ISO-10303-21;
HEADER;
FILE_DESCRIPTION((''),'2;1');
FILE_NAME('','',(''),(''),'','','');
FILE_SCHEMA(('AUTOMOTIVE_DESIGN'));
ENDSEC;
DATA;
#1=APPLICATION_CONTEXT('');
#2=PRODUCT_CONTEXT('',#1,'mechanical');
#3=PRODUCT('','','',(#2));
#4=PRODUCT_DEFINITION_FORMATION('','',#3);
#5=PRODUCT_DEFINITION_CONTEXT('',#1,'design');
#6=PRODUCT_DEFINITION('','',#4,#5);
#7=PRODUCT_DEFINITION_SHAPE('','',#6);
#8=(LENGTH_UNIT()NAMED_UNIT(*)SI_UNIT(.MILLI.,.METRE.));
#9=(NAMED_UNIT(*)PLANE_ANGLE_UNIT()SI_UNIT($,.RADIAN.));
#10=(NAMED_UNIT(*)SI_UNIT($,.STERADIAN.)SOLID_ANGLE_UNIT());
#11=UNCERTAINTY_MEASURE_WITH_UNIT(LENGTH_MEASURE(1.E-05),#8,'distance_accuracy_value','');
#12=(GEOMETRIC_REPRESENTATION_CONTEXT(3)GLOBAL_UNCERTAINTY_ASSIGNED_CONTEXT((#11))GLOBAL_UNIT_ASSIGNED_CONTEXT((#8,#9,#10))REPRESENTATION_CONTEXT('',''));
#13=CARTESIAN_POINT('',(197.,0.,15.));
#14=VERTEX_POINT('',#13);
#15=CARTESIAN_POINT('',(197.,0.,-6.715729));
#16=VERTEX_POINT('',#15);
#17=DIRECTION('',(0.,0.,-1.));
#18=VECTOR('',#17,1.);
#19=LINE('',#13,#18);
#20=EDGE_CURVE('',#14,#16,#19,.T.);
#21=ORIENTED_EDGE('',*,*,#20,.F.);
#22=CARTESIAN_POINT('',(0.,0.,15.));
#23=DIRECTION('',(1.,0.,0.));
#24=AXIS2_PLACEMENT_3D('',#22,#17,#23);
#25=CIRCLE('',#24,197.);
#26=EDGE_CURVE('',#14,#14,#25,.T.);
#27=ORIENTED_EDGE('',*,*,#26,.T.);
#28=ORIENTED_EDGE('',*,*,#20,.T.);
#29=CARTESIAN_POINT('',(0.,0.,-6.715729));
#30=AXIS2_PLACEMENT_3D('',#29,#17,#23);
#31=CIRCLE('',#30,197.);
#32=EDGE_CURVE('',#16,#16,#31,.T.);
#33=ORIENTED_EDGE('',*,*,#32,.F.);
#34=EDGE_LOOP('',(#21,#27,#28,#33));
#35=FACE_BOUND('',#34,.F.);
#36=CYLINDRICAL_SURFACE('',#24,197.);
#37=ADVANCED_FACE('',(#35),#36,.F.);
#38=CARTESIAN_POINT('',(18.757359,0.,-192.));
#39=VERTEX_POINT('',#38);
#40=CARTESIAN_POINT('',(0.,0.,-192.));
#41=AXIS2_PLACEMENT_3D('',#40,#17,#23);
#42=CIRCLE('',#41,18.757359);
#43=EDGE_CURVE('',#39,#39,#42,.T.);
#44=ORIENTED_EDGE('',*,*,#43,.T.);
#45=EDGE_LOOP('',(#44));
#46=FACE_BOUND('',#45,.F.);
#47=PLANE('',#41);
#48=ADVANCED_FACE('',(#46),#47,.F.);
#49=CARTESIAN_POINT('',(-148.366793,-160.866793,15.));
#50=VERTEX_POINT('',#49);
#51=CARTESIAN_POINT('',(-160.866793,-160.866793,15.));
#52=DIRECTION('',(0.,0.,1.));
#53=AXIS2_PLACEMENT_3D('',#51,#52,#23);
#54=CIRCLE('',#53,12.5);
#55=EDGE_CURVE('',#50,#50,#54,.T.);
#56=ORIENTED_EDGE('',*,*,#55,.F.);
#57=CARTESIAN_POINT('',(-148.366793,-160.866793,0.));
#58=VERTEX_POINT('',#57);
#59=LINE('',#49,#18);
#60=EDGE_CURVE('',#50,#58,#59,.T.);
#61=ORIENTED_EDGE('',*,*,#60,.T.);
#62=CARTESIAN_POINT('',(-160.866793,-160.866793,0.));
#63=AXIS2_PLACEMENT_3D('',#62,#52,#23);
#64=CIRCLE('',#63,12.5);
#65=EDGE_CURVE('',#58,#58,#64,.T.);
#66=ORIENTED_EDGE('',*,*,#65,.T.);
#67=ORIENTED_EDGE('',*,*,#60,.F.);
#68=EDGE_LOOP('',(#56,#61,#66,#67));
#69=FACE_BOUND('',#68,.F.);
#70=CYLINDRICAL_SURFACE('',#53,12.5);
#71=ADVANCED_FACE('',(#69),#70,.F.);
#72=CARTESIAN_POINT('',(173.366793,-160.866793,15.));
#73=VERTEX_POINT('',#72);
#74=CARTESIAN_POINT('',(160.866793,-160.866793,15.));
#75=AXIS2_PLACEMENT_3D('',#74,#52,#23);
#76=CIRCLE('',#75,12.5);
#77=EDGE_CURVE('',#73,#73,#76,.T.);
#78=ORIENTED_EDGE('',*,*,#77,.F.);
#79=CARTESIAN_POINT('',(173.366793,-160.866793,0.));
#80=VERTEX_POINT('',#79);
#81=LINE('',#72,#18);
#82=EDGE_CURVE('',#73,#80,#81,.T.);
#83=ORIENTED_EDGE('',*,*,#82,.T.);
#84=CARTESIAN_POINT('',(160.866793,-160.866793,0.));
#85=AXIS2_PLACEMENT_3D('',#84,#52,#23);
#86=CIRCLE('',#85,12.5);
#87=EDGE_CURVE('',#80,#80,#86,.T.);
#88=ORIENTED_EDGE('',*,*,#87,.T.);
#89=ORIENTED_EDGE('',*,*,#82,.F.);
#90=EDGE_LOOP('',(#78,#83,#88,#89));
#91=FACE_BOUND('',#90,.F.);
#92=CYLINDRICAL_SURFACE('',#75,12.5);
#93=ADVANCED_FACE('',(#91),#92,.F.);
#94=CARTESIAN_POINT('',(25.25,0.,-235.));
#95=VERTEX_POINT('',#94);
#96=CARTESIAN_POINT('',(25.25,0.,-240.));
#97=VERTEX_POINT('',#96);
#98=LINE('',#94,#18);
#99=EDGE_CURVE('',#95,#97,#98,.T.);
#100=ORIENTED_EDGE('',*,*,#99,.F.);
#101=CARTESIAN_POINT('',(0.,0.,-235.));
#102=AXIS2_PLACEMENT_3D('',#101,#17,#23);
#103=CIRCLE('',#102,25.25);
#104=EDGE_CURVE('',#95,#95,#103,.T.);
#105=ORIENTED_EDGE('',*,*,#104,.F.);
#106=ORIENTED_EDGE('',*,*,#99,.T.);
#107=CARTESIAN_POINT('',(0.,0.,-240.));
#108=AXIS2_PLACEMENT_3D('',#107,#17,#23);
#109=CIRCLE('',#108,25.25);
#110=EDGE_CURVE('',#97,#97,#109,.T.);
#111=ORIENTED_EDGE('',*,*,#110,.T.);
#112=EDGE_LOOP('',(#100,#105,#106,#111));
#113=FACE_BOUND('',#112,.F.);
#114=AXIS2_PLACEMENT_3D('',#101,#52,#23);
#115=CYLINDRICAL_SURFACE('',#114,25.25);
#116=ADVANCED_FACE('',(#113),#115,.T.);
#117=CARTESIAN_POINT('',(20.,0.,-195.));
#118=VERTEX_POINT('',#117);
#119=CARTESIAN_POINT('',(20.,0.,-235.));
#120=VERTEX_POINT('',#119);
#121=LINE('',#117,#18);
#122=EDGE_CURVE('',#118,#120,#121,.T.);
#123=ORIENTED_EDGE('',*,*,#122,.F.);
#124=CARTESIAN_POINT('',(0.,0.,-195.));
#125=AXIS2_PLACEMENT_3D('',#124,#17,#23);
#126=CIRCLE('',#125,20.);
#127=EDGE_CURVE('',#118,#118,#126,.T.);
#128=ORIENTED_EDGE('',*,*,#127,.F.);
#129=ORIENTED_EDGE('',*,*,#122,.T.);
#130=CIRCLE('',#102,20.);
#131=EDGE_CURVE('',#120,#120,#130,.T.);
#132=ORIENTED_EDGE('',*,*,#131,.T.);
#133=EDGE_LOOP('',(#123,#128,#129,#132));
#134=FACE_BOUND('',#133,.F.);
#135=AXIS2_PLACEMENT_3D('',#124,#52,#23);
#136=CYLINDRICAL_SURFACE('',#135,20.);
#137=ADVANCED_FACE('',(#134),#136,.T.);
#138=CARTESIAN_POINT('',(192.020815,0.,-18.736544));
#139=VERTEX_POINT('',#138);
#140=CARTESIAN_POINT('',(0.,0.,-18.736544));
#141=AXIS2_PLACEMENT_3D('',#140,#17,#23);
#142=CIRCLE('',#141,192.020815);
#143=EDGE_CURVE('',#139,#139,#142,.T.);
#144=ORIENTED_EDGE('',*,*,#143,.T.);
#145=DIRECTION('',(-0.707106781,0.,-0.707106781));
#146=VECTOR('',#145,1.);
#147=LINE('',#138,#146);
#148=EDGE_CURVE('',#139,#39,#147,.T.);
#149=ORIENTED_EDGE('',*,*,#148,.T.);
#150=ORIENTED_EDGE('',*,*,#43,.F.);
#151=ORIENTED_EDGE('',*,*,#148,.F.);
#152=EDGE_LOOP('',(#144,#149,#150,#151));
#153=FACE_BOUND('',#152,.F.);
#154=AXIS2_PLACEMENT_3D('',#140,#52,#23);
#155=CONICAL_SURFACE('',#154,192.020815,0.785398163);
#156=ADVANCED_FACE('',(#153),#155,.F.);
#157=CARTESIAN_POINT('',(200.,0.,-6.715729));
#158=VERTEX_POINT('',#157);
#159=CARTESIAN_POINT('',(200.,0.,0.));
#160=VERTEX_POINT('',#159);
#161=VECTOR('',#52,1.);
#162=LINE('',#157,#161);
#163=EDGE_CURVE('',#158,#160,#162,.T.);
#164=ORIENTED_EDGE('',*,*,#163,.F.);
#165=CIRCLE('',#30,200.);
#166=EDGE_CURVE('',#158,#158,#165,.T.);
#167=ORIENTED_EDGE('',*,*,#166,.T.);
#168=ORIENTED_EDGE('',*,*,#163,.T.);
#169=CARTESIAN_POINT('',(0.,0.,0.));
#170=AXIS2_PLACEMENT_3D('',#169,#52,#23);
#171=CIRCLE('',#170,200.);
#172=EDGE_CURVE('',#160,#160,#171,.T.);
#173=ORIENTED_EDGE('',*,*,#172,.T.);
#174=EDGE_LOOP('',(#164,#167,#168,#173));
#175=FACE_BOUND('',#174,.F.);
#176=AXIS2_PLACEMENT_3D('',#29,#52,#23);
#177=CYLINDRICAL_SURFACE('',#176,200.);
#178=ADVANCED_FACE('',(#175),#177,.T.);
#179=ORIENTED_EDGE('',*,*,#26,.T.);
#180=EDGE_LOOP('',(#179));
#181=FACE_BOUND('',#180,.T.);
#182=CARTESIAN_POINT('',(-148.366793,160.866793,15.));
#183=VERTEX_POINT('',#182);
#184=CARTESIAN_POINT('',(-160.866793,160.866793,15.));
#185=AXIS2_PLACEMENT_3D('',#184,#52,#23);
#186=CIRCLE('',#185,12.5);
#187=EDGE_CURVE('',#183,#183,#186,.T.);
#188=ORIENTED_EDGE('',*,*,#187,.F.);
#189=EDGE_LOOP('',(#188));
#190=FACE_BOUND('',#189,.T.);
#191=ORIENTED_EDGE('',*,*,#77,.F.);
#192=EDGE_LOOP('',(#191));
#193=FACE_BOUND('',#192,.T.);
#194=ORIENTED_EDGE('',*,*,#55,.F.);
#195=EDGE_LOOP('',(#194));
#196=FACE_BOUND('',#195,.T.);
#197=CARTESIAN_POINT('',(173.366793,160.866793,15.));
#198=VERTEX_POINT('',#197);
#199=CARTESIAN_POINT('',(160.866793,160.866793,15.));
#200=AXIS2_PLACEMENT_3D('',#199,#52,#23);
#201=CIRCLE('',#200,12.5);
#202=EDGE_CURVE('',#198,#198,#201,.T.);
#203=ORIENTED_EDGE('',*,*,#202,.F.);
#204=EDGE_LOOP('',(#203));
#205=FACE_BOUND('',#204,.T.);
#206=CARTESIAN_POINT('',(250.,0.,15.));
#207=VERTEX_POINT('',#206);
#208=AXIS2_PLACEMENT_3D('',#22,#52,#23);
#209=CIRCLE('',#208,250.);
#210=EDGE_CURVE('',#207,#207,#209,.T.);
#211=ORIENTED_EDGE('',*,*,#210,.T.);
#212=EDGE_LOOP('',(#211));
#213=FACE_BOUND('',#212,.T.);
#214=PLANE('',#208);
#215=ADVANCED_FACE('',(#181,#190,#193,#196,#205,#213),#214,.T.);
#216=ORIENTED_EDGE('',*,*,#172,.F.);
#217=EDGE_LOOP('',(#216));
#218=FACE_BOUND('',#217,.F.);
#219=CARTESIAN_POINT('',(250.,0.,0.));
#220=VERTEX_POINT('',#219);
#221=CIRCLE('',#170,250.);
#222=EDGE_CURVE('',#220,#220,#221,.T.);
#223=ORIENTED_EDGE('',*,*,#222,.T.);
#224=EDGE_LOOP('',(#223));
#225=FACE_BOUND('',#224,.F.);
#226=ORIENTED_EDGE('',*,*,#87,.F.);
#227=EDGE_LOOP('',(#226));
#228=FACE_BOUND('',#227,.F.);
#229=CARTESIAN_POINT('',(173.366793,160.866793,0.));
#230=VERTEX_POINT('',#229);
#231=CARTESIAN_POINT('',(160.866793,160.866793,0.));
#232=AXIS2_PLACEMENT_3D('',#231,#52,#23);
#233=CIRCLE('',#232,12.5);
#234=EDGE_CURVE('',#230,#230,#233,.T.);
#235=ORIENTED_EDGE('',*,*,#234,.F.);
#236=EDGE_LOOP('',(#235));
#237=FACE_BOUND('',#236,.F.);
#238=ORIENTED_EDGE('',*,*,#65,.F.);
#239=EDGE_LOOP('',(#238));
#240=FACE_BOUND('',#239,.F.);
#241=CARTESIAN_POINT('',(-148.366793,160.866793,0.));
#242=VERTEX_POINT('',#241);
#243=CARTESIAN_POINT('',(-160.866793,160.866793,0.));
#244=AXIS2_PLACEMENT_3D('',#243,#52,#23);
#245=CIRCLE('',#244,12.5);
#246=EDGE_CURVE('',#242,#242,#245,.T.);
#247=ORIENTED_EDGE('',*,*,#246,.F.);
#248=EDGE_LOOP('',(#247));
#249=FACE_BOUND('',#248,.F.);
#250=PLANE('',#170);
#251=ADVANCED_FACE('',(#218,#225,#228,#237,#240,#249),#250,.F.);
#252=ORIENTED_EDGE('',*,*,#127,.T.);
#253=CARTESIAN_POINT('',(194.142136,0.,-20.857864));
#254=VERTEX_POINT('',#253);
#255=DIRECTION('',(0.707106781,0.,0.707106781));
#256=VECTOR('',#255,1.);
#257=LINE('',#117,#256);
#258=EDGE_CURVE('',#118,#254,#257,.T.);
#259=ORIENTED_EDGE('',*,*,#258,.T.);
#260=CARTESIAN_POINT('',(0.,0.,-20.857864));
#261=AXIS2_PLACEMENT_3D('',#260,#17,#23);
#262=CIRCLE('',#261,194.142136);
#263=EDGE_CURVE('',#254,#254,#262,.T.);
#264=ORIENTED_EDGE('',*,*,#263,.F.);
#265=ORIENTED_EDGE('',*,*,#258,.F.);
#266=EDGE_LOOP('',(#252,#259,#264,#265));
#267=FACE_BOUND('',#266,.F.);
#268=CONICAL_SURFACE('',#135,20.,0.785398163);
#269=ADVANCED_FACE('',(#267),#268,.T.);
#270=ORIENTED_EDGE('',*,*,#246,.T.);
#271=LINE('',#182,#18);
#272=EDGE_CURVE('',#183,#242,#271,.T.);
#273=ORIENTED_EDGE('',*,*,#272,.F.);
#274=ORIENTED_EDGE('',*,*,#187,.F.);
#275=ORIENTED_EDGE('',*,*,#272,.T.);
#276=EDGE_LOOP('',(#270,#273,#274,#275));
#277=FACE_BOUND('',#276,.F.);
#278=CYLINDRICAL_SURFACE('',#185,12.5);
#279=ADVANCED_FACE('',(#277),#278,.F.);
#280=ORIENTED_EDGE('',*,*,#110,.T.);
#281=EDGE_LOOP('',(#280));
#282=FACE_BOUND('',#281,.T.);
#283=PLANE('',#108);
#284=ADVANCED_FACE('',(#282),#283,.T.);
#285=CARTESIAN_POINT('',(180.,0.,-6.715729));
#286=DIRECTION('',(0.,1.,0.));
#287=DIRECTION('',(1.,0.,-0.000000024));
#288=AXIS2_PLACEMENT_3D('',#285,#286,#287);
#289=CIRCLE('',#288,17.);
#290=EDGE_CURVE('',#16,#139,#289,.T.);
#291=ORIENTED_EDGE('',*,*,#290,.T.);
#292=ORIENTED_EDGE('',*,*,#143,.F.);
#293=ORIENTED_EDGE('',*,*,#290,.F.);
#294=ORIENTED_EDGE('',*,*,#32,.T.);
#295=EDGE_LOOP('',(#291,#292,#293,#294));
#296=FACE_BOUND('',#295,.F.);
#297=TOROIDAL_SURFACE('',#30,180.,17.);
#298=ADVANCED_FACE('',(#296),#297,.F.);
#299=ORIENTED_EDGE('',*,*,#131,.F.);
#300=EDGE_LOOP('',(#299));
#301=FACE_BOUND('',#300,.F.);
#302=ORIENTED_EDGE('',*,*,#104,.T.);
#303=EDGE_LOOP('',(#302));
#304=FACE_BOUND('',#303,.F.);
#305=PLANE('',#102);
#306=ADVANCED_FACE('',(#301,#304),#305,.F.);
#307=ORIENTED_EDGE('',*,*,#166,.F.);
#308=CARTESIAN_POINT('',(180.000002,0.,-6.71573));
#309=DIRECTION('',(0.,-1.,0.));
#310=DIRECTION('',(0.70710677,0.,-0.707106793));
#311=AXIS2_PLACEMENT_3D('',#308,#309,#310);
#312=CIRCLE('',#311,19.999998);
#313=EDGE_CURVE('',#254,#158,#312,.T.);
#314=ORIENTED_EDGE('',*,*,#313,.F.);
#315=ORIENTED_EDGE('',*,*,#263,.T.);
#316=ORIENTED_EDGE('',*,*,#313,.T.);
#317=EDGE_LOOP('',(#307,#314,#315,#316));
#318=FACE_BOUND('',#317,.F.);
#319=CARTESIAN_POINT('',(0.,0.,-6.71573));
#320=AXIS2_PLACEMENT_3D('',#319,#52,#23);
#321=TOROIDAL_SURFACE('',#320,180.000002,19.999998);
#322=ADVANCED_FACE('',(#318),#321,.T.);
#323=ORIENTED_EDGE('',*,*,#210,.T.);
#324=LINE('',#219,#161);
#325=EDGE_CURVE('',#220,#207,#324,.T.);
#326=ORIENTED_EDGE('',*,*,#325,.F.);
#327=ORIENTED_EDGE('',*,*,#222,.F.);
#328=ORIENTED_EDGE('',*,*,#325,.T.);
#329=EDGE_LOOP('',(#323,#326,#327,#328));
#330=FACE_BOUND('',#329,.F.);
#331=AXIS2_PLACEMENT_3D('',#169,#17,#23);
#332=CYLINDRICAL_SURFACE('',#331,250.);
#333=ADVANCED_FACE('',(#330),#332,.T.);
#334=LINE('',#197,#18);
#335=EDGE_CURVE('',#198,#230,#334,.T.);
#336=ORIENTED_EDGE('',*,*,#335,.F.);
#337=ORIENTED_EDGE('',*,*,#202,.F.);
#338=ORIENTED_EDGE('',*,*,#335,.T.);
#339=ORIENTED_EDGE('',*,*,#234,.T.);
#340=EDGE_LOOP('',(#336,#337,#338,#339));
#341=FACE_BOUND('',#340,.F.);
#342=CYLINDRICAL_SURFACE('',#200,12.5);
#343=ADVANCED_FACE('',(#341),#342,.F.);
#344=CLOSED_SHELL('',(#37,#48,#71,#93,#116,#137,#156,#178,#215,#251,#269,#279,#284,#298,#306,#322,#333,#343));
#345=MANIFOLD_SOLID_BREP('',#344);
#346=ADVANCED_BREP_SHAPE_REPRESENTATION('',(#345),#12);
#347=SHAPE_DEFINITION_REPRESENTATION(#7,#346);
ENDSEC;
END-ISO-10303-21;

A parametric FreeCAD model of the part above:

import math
import FreeCAD as App
import Part
import Sketcher
from FreeCAD import Vector
Q = App.Units.Quantity

doc = App.newDocument("Part")
body = doc.addObject("PartDesign::Body", "Body")

sketch1 = body.newObject("Sketcher::SketchObject", "Sketch")
sketch1.AttachmentSupport = (doc.getObject("XY_Plane"), [""])
sketch1.MapMode = "FlatFace"
sketch1.addGeometry(Part.Circle(Vector(0, 0, 0), Vector(0, 0, 1), 250), False)
sketch1.addGeometry(Part.Circle(Vector(0, 0, 0), Vector(0, 0, 1), 200), False)
sketch1.addConstraint(Sketcher.Constraint("Coincident", 0, 3, -1, 1))
sketch1.addConstraint(Sketcher.Constraint("Coincident", 1, 3, -1, 1))
sketch1.addConstraint(Sketcher.Constraint("Diameter", 0, Q("500 mm")))
sketch1.addConstraint(Sketcher.Constraint("Diameter", 1, Q("400 mm")))
pad1 = body.newObject("PartDesign::Pad", "Pad")
pad1.Profile = sketch1
pad1.Length = 15

sketch2 = body.newObject("Sketcher::SketchObject", "Sketch001")
sketch2.AttachmentSupport = (doc.getObject("XZ_Plane"), [""])
sketch2.MapMode = "FlatFace"
sketch2.addGeometry(Part.LineSegment(Vector(200, -6.715729, 0), Vector(200, 15, 0)), False)
sketch2.addGeometry(Part.LineSegment(Vector(200, 15, 0), Vector(197, 15, 0)), False)
sketch2.addGeometry(Part.LineSegment(Vector(197, 15, 0), Vector(197, -6.715729, 0)), False)
sketch2.addGeometry(Part.ArcOfCircle(Part.Circle(Vector(180, -6.715729, 0), Vector(0, 0, 1), 17), math.radians(-45.000002), math.radians(-0.000001)), False)
sketch2.addGeometry(Part.LineSegment(Vector(192.020815, -18.736544, 0), Vector(18.757359, -192, 0)), False)
sketch2.addGeometry(Part.LineSegment(Vector(18.757359, -192, 0), Vector(0, -192, 0)), False)
sketch2.addGeometry(Part.LineSegment(Vector(0, -192, 0), Vector(0, -195, 0)), False)
sketch2.addGeometry(Part.LineSegment(Vector(0, -195, 0), Vector(20, -195, 0)), False)
sketch2.addGeometry(Part.LineSegment(Vector(20, -195, 0), Vector(194.142136, -20.857864, 0)), False)
sketch2.addGeometry(Part.ArcOfCircle(Part.Circle(Vector(180.000002, -6.71573, 0), Vector(0, 0, 1), 19.999998), math.radians(-45.000001), math.radians(0.000002)), False)
sketch2.addConstraint(Sketcher.Constraint("Coincident", 0, 2, 1, 1))
sketch2.addConstraint(Sketcher.Constraint("Coincident", 1, 2, 2, 1))
sketch2.addConstraint(Sketcher.Constraint("Tangent", 2, 2, 3, 2))
sketch2.addConstraint(Sketcher.Constraint("Tangent", 3, 1, 4, 1))
sketch2.addConstraint(Sketcher.Constraint("Coincident", 4, 2, 5, 1))
sketch2.addConstraint(Sketcher.Constraint("Coincident", 5, 2, 6, 1))
sketch2.addConstraint(Sketcher.Constraint("Coincident", 6, 2, 7, 1))
sketch2.addConstraint(Sketcher.Constraint("Coincident", 7, 2, 8, 1))
sketch2.addConstraint(Sketcher.Constraint("Tangent", 8, 2, 9, 1))
sketch2.addConstraint(Sketcher.Constraint("Tangent", 9, 2, 0, 1))
sketch2.addConstraint(Sketcher.Constraint("Vertical", 0))
sketch2.addConstraint(Sketcher.Constraint("Horizontal", 1))
sketch2.addConstraint(Sketcher.Constraint("Vertical", 2))
sketch2.addConstraint(Sketcher.Constraint("Horizontal", 5))
sketch2.addConstraint(Sketcher.Constraint("Vertical", 6))
sketch2.addConstraint(Sketcher.Constraint("Horizontal", 7))
sketch2.addConstraint(Sketcher.Constraint("Coincident", 9, 3, 3, 3))
sketch2.addConstraint(Sketcher.Constraint("PointOnObject", 5, 2, -2))
sketch2.addConstraint(Sketcher.Constraint("Parallel", 4, 8))
sketch2.addConstraint(Sketcher.Constraint("Equal", 1, 6))
sketch2.addConstraint(Sketcher.Constraint("Radius", 3, Q("17 mm")))
sketch2.addConstraint(Sketcher.Constraint("DistanceX", 1, 2, 1, 1, Q("3 mm")))
sketch2.addConstraint(Sketcher.Constraint("DistanceX", 7, 1, 7, 2, Q("20 mm")))
sketch2.addConstraint(Sketcher.Constraint("Angle", 4, Q("-135 deg")))
sketch2.addConstraint(Sketcher.Constraint("DistanceX", -1, 1, 3, 3, Q("180 mm")))
sketch2.addConstraint(Sketcher.Constraint("DistanceY", -1, 1, 0, 2, Q("15 mm")))
sketch2.addConstraint(Sketcher.Constraint("DistanceY", 4, 2, -1, 1, Q("192 mm")))
revolution = body.newObject("PartDesign::Revolution", "Revolution")
revolution.Profile = sketch2
revolution.ReferenceAxis = (sketch2, ["V_Axis"])
revolution.Angle = 360

sketch3 = body.newObject("Sketcher::SketchObject", "Sketch002")
sketch3.AttachmentSupport = (doc.getObject("XY_Plane"), [""])
sketch3.MapMode = "FlatFace"
sketch3.AttachmentOffset = App.Placement(Vector(0, 0, -195), App.Rotation())
sketch3.addGeometry(Part.Circle(Vector(0, 0, 0), Vector(0, 0, 1), 20), False)
sketch3.addConstraint(Sketcher.Constraint("Coincident", 0, 3, -1, 1))
sketch3.addConstraint(Sketcher.Constraint("Diameter", 0, Q("40 mm")))
pad2 = body.newObject("PartDesign::Pad", "Pad001")
pad2.Profile = sketch3
pad2.Length = 40
pad2.Reversed = True

sketch4 = body.newObject("Sketcher::SketchObject", "Sketch003")
sketch4.AttachmentSupport = (doc.getObject("XY_Plane"), [""])
sketch4.MapMode = "FlatFace"
sketch4.AttachmentOffset = App.Placement(Vector(0, 0, -235), App.Rotation())
sketch4.addGeometry(Part.Circle(Vector(0, 0, 0), Vector(0, 0, 1), 25.25), False)
sketch4.addConstraint(Sketcher.Constraint("Coincident", 0, 3, -1, 1))
sketch4.addConstraint(Sketcher.Constraint("Diameter", 0, Q("50.5 mm")))
pad3 = body.newObject("PartDesign::Pad", "Pad002")
pad3.Profile = sketch4
pad3.Length = 5
pad3.Reversed = True

sketch5 = body.newObject("Sketcher::SketchObject", "Sketch004")
sketch5.AttachmentSupport = (doc.getObject("XY_Plane"), [""])
sketch5.MapMode = "FlatFace"
sketch5.AttachmentOffset = App.Placement(Vector(0, 0, 15), App.Rotation())
sketch5.addGeometry(Part.Circle(Vector(160.866793, 160.866793, 0), Vector(0, 0, 1), 12.5), False)
sketch5.addGeometry(Part.Circle(Vector(-160.866793, 160.866793, 0), Vector(0, 0, 1), 12.5), False)
sketch5.addGeometry(Part.Circle(Vector(-160.866793, -160.866793, 0), Vector(0, 0, 1), 12.5), False)
sketch5.addGeometry(Part.Circle(Vector(160.866793, -160.866793, 0), Vector(0, 0, 1), 12.5), False)
sketch5.addConstraint(Sketcher.Constraint("Equal", 0, 1))
sketch5.addConstraint(Sketcher.Constraint("Equal", 1, 2))
sketch5.addConstraint(Sketcher.Constraint("Equal", 2, 3))
sketch5.addConstraint(Sketcher.Constraint("Symmetric", 0, 3, 2, 3, -1, 1))
sketch5.addConstraint(Sketcher.Constraint("Symmetric", 1, 3, 3, 3, -1, 1))
sketch5.addConstraint(Sketcher.Constraint("Symmetric", 0, 3, 1, 3, -2))
sketch5.addConstraint(Sketcher.Constraint("Diameter", 0, Q("25 mm")))
sketch5.addConstraint(Sketcher.Constraint("DistanceX", -1, 1, 0, 3, Q("160.866793 mm")))
sketch5.addConstraint(Sketcher.Constraint("DistanceY", -1, 1, 0, 3, Q("160.866793 mm")))
pocket1 = body.newObject("PartDesign::Pocket", "Pocket")
pocket1.Profile = sketch5
pocket1.Length = 15

doc.recompute()
